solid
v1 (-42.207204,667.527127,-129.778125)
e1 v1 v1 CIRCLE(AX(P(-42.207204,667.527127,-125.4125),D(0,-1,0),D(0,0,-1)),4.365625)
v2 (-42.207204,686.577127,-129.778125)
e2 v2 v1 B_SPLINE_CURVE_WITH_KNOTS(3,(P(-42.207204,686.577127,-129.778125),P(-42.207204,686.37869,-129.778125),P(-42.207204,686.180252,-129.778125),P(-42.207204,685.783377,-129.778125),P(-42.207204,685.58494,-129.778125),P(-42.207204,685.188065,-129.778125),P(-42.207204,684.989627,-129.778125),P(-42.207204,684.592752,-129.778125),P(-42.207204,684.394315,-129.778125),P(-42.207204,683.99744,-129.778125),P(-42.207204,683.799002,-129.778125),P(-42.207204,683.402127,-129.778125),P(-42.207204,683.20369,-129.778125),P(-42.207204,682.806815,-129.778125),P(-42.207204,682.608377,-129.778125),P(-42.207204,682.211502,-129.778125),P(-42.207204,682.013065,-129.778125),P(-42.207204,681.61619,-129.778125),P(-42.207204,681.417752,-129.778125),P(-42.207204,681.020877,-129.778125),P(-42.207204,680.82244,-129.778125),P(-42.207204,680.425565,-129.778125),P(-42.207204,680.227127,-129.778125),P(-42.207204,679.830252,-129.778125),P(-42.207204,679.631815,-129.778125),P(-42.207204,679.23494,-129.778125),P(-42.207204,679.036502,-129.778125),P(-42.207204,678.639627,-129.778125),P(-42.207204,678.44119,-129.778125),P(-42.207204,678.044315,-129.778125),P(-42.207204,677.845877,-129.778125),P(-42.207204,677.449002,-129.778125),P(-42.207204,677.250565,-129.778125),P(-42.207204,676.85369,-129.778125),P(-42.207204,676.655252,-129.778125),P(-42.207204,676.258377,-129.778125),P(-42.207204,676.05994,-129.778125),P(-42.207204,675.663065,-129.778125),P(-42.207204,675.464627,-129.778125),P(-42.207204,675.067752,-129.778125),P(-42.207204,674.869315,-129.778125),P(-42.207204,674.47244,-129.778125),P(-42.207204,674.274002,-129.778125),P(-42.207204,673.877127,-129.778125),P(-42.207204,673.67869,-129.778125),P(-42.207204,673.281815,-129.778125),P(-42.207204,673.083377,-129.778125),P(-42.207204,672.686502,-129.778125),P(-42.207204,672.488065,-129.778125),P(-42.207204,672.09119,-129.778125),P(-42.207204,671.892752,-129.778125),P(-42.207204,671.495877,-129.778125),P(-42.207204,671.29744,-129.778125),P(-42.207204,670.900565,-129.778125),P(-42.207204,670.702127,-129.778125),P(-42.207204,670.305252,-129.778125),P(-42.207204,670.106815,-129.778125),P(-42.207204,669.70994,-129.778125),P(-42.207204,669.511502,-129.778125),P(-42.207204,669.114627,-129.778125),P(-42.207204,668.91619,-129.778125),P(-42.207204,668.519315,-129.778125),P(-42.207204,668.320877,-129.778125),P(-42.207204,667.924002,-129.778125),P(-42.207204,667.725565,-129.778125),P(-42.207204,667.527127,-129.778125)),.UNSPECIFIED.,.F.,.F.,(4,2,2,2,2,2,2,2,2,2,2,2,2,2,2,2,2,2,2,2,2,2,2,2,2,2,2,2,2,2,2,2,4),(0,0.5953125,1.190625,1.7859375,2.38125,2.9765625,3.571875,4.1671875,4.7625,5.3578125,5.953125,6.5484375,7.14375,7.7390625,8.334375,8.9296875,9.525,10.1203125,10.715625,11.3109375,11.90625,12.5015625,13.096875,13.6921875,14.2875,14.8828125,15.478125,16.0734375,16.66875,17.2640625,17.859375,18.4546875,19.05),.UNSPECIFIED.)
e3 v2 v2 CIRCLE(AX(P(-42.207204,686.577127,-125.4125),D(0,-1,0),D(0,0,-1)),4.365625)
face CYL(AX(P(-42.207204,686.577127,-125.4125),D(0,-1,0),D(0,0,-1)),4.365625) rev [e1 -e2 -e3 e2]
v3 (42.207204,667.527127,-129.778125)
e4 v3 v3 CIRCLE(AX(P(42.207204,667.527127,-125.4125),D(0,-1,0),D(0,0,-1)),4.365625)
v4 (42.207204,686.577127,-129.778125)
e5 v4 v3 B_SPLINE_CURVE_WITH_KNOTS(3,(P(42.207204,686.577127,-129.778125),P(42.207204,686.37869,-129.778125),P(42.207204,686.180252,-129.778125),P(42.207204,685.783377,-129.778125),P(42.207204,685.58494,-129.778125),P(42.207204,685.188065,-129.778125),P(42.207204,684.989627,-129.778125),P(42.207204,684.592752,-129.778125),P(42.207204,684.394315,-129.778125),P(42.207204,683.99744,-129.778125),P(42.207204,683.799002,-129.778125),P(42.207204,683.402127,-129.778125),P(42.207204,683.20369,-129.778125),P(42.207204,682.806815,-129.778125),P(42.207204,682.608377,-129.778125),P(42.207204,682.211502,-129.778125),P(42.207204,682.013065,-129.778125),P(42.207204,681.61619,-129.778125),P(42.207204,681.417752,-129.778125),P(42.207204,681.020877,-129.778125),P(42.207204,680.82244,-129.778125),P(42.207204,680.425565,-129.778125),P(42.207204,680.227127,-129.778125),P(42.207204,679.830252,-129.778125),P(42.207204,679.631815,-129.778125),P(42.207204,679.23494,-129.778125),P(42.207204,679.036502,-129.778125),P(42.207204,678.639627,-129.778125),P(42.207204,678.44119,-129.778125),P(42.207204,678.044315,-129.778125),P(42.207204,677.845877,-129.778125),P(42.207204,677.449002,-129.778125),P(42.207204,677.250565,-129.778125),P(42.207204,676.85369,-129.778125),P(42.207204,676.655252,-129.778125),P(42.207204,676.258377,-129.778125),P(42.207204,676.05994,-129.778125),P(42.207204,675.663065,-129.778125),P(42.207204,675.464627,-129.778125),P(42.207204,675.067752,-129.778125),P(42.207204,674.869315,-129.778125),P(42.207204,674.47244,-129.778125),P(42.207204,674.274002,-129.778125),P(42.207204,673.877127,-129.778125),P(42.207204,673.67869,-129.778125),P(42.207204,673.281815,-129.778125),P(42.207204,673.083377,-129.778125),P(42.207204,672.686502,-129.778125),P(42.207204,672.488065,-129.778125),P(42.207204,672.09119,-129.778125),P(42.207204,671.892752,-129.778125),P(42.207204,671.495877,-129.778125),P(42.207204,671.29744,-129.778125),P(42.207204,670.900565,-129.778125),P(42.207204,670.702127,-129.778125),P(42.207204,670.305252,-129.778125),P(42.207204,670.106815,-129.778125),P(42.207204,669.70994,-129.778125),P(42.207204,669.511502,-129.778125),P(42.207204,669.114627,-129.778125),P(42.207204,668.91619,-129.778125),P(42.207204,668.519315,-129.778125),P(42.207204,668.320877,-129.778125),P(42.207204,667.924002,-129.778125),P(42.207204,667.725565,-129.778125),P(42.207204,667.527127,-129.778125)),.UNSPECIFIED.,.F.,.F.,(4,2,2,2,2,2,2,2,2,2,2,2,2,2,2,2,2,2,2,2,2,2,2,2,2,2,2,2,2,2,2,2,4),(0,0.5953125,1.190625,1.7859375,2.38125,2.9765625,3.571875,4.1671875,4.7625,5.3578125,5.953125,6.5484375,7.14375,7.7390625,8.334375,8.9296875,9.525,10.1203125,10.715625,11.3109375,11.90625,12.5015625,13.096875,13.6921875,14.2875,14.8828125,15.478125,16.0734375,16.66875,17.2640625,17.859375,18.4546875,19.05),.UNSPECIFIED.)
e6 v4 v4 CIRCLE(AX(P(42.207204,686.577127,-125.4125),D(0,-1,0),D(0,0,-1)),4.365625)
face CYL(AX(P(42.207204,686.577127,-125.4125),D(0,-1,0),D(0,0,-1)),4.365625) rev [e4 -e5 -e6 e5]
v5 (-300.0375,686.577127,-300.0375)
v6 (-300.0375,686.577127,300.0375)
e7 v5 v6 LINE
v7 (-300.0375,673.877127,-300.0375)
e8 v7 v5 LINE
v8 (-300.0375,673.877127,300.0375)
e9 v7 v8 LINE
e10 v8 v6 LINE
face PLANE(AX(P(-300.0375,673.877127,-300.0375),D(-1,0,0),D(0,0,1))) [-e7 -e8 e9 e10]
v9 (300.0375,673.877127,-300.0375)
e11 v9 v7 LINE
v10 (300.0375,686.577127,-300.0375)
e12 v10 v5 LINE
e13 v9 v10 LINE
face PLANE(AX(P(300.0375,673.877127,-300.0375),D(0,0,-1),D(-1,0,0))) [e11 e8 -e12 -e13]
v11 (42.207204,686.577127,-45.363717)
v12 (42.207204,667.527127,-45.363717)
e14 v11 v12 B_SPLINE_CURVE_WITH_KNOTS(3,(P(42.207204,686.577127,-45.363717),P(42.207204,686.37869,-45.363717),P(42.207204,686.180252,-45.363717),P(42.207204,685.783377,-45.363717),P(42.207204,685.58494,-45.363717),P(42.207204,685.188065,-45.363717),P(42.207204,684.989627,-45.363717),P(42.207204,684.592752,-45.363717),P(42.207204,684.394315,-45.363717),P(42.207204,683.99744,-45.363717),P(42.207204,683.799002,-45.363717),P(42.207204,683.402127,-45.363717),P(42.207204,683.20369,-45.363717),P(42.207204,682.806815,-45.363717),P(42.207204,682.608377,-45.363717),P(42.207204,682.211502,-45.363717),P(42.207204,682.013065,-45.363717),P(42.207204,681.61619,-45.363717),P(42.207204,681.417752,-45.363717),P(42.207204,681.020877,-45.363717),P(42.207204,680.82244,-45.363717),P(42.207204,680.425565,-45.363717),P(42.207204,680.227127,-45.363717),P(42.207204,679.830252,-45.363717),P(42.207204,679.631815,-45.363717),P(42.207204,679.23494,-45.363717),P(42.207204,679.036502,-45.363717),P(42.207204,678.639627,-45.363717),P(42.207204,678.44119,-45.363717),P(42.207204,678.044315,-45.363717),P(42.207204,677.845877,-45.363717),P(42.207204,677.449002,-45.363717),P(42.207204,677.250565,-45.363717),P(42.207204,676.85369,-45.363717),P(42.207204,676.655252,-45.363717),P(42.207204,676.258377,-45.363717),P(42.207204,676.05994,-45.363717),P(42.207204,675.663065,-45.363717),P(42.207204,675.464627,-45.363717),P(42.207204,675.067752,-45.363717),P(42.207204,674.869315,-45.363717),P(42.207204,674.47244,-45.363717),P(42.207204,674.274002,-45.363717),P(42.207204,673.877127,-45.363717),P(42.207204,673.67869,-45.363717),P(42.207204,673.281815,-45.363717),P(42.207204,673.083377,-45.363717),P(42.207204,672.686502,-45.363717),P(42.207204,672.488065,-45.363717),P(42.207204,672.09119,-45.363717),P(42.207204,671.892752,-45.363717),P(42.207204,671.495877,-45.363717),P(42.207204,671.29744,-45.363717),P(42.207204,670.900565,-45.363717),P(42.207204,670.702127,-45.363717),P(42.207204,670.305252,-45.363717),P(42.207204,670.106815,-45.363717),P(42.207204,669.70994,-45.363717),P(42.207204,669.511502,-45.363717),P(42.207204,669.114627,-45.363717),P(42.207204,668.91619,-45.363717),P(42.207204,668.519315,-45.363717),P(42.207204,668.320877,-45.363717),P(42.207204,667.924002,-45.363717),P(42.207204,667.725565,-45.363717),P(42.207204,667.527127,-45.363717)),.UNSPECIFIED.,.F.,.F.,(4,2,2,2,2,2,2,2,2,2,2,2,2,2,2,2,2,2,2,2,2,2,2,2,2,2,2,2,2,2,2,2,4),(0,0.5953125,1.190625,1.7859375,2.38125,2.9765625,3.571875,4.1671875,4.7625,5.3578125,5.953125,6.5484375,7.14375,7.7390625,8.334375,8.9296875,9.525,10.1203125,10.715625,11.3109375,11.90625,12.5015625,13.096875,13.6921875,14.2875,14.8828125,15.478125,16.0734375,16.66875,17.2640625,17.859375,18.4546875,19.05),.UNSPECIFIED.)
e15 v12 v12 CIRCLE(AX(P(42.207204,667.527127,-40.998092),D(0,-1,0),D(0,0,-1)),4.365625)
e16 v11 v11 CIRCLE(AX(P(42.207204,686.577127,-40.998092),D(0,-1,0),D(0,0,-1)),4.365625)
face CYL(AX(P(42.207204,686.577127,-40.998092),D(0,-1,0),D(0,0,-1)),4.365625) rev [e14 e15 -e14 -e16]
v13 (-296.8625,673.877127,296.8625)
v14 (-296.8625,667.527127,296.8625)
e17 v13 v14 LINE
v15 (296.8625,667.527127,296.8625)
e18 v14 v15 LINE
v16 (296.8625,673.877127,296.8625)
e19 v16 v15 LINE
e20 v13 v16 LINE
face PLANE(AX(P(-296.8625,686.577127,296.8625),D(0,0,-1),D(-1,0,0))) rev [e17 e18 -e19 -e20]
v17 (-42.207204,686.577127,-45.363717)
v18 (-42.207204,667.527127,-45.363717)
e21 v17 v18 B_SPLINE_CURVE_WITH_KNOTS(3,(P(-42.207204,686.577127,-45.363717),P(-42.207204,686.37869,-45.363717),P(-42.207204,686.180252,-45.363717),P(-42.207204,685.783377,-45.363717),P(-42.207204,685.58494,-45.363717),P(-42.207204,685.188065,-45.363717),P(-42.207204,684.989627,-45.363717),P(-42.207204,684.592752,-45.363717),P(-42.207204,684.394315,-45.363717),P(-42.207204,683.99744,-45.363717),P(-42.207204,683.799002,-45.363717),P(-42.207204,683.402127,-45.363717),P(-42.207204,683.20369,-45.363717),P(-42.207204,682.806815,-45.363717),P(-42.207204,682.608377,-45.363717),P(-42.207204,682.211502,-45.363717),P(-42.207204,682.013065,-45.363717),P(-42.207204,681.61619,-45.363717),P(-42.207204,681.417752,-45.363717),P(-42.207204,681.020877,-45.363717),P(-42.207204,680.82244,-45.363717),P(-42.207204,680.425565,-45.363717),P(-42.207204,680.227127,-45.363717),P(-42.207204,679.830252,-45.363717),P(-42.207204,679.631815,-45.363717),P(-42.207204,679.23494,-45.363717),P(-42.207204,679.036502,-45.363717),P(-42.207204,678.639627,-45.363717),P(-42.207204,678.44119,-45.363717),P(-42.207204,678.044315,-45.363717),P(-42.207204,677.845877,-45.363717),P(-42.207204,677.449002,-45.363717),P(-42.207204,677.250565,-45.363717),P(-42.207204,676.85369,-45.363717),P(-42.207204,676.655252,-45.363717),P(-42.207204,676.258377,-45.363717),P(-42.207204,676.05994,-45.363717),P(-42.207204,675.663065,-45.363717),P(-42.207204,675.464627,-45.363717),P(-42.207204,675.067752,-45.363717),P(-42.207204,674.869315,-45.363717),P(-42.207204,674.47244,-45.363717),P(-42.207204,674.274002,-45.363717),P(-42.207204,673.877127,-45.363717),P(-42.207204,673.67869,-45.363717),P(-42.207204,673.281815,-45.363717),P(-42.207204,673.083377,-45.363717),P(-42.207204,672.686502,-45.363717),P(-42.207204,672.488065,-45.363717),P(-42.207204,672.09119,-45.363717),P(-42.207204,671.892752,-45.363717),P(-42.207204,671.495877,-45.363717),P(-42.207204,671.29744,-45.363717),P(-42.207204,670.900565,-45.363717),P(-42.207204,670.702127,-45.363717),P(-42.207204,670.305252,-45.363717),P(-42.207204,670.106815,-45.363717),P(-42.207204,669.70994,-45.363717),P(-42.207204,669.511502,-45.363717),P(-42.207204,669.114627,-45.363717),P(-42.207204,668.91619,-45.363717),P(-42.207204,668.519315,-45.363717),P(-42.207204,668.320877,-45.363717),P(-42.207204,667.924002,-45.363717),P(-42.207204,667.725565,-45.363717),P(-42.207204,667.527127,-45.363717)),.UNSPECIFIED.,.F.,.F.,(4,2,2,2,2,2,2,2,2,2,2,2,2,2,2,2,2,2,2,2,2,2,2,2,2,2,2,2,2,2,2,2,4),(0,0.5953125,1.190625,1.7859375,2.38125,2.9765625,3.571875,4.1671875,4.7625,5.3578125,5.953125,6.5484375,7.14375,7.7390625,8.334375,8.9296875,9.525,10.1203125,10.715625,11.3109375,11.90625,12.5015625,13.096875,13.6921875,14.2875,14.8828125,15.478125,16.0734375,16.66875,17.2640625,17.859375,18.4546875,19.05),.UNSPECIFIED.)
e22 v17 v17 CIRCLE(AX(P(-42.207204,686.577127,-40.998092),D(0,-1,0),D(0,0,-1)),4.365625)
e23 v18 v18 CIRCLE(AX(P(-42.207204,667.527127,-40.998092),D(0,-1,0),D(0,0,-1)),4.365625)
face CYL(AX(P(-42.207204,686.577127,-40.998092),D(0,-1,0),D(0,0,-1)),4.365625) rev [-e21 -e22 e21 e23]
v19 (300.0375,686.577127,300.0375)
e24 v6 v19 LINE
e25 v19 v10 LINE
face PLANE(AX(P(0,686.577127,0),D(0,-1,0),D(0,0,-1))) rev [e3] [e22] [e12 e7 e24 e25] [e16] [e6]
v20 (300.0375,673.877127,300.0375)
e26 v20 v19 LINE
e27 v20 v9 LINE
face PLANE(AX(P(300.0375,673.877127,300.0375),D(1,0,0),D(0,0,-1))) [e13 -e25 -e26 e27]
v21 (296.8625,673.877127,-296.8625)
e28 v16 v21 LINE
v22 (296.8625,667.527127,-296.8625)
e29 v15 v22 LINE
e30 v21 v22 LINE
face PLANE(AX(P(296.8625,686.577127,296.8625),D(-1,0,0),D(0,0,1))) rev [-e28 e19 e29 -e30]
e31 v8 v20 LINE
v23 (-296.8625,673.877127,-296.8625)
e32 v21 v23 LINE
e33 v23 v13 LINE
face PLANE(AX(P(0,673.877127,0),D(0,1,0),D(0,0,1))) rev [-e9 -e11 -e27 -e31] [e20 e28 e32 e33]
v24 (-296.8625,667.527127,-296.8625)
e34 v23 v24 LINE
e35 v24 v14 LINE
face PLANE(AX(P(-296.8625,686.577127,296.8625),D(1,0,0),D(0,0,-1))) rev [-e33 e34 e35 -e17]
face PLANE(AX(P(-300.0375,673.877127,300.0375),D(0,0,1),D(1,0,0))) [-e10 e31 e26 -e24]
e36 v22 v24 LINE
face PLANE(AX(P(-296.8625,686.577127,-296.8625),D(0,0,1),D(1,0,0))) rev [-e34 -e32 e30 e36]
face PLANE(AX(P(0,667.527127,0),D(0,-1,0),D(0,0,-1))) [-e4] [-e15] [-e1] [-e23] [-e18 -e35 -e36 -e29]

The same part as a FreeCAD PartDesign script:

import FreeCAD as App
import Part
import Sketcher
from FreeCAD import Vector
Q = App.Units.Quantity

doc = App.newDocument("Part")
params = doc.addObject("Spreadsheet::Sheet", "Params")
for row, (alias, value) in enumerate([
    ("sketch1_width", "23.375 in"),
    ("pad1_length", "0.75 in"),
    ("sketch2_width", "23.625 in"),
    ("pad2_length", "0.5 in"),
    ("sketch3_diameter", "0.34375 in"),
    ("pocket1_length", "0.75 in"),
], start=1):
    params.set(f"A{row}", alias)
    params.set(f"B{row}", "=" + value)
    params.setAlias(f"B{row}", alias)

body = doc.addObject("PartDesign::Body", "Body")

sketch1 = body.newObject("Sketcher::SketchObject", "Sketch")
sketch1.AttachmentSupport = (doc.getObject("XZ_Plane"), [""])
sketch1.MapMode = "FlatFace"
sketch1.AttachmentOffset = App.Placement(Vector(0, 0, -667.527127), App.Rotation())
sketch1.addGeometry([
    Part.LineSegment(Vector(-296.8625, -296.8625, 0), Vector(-296.8625, 296.8625, 0)),
    Part.LineSegment(Vector(-296.8625, 296.8625, 0), Vector(296.8625, 296.8625, 0)),
    Part.LineSegment(Vector(296.8625, 296.8625, 0), Vector(296.8625, -296.8625, 0)),
    Part.LineSegment(Vector(296.8625, -296.8625, 0), Vector(-296.8625, -296.8625, 0)),
], False)
sketch1.addConstraint([
    Sketcher.Constraint("Coincident", 0, 2, 1, 1),
    Sketcher.Constraint("Coincident", 1, 2, 2, 1),
    Sketcher.Constraint("Coincident", 2, 2, 3, 1),
    Sketcher.Constraint("Coincident", 3, 2, 0, 1),
    Sketcher.Constraint("Vertical", 0),
    Sketcher.Constraint("Horizontal", 1),
    Sketcher.Constraint("Vertical", 2),
    Sketcher.Constraint("Horizontal", 3),
    Sketcher.Constraint("Symmetric", 0, 2, 2, 2, -1, 1),
    Sketcher.Constraint("Equal", 3, 0),
    Sketcher.Constraint("DistanceX", 1, 1, 1, 2, Q("23.375 in")),
])
sketch1.setExpression("Constraints[10]", "Params.sketch1_width")
pad1 = body.newObject("PartDesign::Pad", "Pad")
pad1.Profile = sketch1
pad1.setExpression("Length", "Params.pad1_length")
pad1.Reversed = True

sketch2 = body.newObject("Sketcher::SketchObject", "Sketch001")
sketch2.AttachmentSupport = (doc.getObject("XZ_Plane"), [""])
sketch2.MapMode = "FlatFace"
sketch2.AttachmentOffset = App.Placement(Vector(0, 0, -686.577127), App.Rotation())
sketch2.addGeometry([
    Part.LineSegment(Vector(-300.0375, -300.0375, 0), Vector(-300.0375, 300.0375, 0)),
    Part.LineSegment(Vector(-300.0375, 300.0375, 0), Vector(300.0375, 300.0375, 0)),
    Part.LineSegment(Vector(300.0375, 300.0375, 0), Vector(300.0375, -300.0375, 0)),
    Part.LineSegment(Vector(300.0375, -300.0375, 0), Vector(-300.0375, -300.0375, 0)),
], False)
sketch2.addConstraint([
    Sketcher.Constraint("Coincident", 0, 2, 1, 1),
    Sketcher.Constraint("Coincident", 1, 2, 2, 1),
    Sketcher.Constraint("Coincident", 2, 2, 3, 1),
    Sketcher.Constraint("Coincident", 3, 2, 0, 1),
    Sketcher.Constraint("Vertical", 0),
    Sketcher.Constraint("Horizontal", 1),
    Sketcher.Constraint("Vertical", 2),
    Sketcher.Constraint("Horizontal", 3),
    Sketcher.Constraint("Symmetric", 0, 2, 2, 2, -1, 1),
    Sketcher.Constraint("Equal", 3, 0),
    Sketcher.Constraint("DistanceX", 1, 1, 1, 2, Q("23.625 in")),
])
sketch2.setExpression("Constraints[10]", "Params.sketch2_width")
pad2 = body.newObject("PartDesign::Pad", "Pad001")
pad2.Profile = sketch2
pad2.setExpression("Length", "Params.pad2_length")

sketch3 = body.newObject("Sketcher::SketchObject", "Sketch002")
sketch3.AttachmentSupport = (doc.getObject("XZ_Plane"), [""])
sketch3.MapMode = "FlatFace"
sketch3.AttachmentOffset = App.Placement(Vector(0, 0, -667.527127), App.Rotation())
sketch3.addGeometry([
    Part.Circle(Vector(42.207204, -40.998092, 0), Vector(0, 0, 1), 4.365625),
    Part.Circle(Vector(-42.207204, -40.998092, 0), Vector(0, 0, 1), 4.365625),
    Part.Circle(Vector(-42.207204, -125.4125, 0), Vector(0, 0, 1), 4.365625),
    Part.Circle(Vector(42.207204, -125.4125, 0), Vector(0, 0, 1), 4.365625),
], False)
sketch3.addConstraint([
    Sketcher.Constraint("Equal", 0, 1),
    Sketcher.Constraint("Equal", 1, 2),
    Sketcher.Constraint("Equal", 2, 3),
    Sketcher.Constraint("Symmetric", 0, 3, 1, 3, -2),
    Sketcher.Constraint("Symmetric", 2, 3, 3, 3, -2),
    Sketcher.Constraint("Vertical", 1, 3, 2, 3),
    Sketcher.Constraint("Diameter", 0, Q("0.34375 in")),
    Sketcher.Constraint("DistanceY", 2, 3, -1, 1, Q("4.9375 in")),
    Sketcher.Constraint("DistanceX", -1, 1, 0, 3, Q("42.207204 mm")),
    Sketcher.Constraint("DistanceY", 0, 3, -1, 1, Q("40.998092 mm")),
])
sketch3.setExpression("Constraints[6]", "Params.sketch3_diameter")
pocket1 = body.newObject("PartDesign::Pocket", "Pocket")
pocket1.Profile = sketch3
pocket1.setExpression("Length", "Params.pocket1_length")

doc.recompute()
